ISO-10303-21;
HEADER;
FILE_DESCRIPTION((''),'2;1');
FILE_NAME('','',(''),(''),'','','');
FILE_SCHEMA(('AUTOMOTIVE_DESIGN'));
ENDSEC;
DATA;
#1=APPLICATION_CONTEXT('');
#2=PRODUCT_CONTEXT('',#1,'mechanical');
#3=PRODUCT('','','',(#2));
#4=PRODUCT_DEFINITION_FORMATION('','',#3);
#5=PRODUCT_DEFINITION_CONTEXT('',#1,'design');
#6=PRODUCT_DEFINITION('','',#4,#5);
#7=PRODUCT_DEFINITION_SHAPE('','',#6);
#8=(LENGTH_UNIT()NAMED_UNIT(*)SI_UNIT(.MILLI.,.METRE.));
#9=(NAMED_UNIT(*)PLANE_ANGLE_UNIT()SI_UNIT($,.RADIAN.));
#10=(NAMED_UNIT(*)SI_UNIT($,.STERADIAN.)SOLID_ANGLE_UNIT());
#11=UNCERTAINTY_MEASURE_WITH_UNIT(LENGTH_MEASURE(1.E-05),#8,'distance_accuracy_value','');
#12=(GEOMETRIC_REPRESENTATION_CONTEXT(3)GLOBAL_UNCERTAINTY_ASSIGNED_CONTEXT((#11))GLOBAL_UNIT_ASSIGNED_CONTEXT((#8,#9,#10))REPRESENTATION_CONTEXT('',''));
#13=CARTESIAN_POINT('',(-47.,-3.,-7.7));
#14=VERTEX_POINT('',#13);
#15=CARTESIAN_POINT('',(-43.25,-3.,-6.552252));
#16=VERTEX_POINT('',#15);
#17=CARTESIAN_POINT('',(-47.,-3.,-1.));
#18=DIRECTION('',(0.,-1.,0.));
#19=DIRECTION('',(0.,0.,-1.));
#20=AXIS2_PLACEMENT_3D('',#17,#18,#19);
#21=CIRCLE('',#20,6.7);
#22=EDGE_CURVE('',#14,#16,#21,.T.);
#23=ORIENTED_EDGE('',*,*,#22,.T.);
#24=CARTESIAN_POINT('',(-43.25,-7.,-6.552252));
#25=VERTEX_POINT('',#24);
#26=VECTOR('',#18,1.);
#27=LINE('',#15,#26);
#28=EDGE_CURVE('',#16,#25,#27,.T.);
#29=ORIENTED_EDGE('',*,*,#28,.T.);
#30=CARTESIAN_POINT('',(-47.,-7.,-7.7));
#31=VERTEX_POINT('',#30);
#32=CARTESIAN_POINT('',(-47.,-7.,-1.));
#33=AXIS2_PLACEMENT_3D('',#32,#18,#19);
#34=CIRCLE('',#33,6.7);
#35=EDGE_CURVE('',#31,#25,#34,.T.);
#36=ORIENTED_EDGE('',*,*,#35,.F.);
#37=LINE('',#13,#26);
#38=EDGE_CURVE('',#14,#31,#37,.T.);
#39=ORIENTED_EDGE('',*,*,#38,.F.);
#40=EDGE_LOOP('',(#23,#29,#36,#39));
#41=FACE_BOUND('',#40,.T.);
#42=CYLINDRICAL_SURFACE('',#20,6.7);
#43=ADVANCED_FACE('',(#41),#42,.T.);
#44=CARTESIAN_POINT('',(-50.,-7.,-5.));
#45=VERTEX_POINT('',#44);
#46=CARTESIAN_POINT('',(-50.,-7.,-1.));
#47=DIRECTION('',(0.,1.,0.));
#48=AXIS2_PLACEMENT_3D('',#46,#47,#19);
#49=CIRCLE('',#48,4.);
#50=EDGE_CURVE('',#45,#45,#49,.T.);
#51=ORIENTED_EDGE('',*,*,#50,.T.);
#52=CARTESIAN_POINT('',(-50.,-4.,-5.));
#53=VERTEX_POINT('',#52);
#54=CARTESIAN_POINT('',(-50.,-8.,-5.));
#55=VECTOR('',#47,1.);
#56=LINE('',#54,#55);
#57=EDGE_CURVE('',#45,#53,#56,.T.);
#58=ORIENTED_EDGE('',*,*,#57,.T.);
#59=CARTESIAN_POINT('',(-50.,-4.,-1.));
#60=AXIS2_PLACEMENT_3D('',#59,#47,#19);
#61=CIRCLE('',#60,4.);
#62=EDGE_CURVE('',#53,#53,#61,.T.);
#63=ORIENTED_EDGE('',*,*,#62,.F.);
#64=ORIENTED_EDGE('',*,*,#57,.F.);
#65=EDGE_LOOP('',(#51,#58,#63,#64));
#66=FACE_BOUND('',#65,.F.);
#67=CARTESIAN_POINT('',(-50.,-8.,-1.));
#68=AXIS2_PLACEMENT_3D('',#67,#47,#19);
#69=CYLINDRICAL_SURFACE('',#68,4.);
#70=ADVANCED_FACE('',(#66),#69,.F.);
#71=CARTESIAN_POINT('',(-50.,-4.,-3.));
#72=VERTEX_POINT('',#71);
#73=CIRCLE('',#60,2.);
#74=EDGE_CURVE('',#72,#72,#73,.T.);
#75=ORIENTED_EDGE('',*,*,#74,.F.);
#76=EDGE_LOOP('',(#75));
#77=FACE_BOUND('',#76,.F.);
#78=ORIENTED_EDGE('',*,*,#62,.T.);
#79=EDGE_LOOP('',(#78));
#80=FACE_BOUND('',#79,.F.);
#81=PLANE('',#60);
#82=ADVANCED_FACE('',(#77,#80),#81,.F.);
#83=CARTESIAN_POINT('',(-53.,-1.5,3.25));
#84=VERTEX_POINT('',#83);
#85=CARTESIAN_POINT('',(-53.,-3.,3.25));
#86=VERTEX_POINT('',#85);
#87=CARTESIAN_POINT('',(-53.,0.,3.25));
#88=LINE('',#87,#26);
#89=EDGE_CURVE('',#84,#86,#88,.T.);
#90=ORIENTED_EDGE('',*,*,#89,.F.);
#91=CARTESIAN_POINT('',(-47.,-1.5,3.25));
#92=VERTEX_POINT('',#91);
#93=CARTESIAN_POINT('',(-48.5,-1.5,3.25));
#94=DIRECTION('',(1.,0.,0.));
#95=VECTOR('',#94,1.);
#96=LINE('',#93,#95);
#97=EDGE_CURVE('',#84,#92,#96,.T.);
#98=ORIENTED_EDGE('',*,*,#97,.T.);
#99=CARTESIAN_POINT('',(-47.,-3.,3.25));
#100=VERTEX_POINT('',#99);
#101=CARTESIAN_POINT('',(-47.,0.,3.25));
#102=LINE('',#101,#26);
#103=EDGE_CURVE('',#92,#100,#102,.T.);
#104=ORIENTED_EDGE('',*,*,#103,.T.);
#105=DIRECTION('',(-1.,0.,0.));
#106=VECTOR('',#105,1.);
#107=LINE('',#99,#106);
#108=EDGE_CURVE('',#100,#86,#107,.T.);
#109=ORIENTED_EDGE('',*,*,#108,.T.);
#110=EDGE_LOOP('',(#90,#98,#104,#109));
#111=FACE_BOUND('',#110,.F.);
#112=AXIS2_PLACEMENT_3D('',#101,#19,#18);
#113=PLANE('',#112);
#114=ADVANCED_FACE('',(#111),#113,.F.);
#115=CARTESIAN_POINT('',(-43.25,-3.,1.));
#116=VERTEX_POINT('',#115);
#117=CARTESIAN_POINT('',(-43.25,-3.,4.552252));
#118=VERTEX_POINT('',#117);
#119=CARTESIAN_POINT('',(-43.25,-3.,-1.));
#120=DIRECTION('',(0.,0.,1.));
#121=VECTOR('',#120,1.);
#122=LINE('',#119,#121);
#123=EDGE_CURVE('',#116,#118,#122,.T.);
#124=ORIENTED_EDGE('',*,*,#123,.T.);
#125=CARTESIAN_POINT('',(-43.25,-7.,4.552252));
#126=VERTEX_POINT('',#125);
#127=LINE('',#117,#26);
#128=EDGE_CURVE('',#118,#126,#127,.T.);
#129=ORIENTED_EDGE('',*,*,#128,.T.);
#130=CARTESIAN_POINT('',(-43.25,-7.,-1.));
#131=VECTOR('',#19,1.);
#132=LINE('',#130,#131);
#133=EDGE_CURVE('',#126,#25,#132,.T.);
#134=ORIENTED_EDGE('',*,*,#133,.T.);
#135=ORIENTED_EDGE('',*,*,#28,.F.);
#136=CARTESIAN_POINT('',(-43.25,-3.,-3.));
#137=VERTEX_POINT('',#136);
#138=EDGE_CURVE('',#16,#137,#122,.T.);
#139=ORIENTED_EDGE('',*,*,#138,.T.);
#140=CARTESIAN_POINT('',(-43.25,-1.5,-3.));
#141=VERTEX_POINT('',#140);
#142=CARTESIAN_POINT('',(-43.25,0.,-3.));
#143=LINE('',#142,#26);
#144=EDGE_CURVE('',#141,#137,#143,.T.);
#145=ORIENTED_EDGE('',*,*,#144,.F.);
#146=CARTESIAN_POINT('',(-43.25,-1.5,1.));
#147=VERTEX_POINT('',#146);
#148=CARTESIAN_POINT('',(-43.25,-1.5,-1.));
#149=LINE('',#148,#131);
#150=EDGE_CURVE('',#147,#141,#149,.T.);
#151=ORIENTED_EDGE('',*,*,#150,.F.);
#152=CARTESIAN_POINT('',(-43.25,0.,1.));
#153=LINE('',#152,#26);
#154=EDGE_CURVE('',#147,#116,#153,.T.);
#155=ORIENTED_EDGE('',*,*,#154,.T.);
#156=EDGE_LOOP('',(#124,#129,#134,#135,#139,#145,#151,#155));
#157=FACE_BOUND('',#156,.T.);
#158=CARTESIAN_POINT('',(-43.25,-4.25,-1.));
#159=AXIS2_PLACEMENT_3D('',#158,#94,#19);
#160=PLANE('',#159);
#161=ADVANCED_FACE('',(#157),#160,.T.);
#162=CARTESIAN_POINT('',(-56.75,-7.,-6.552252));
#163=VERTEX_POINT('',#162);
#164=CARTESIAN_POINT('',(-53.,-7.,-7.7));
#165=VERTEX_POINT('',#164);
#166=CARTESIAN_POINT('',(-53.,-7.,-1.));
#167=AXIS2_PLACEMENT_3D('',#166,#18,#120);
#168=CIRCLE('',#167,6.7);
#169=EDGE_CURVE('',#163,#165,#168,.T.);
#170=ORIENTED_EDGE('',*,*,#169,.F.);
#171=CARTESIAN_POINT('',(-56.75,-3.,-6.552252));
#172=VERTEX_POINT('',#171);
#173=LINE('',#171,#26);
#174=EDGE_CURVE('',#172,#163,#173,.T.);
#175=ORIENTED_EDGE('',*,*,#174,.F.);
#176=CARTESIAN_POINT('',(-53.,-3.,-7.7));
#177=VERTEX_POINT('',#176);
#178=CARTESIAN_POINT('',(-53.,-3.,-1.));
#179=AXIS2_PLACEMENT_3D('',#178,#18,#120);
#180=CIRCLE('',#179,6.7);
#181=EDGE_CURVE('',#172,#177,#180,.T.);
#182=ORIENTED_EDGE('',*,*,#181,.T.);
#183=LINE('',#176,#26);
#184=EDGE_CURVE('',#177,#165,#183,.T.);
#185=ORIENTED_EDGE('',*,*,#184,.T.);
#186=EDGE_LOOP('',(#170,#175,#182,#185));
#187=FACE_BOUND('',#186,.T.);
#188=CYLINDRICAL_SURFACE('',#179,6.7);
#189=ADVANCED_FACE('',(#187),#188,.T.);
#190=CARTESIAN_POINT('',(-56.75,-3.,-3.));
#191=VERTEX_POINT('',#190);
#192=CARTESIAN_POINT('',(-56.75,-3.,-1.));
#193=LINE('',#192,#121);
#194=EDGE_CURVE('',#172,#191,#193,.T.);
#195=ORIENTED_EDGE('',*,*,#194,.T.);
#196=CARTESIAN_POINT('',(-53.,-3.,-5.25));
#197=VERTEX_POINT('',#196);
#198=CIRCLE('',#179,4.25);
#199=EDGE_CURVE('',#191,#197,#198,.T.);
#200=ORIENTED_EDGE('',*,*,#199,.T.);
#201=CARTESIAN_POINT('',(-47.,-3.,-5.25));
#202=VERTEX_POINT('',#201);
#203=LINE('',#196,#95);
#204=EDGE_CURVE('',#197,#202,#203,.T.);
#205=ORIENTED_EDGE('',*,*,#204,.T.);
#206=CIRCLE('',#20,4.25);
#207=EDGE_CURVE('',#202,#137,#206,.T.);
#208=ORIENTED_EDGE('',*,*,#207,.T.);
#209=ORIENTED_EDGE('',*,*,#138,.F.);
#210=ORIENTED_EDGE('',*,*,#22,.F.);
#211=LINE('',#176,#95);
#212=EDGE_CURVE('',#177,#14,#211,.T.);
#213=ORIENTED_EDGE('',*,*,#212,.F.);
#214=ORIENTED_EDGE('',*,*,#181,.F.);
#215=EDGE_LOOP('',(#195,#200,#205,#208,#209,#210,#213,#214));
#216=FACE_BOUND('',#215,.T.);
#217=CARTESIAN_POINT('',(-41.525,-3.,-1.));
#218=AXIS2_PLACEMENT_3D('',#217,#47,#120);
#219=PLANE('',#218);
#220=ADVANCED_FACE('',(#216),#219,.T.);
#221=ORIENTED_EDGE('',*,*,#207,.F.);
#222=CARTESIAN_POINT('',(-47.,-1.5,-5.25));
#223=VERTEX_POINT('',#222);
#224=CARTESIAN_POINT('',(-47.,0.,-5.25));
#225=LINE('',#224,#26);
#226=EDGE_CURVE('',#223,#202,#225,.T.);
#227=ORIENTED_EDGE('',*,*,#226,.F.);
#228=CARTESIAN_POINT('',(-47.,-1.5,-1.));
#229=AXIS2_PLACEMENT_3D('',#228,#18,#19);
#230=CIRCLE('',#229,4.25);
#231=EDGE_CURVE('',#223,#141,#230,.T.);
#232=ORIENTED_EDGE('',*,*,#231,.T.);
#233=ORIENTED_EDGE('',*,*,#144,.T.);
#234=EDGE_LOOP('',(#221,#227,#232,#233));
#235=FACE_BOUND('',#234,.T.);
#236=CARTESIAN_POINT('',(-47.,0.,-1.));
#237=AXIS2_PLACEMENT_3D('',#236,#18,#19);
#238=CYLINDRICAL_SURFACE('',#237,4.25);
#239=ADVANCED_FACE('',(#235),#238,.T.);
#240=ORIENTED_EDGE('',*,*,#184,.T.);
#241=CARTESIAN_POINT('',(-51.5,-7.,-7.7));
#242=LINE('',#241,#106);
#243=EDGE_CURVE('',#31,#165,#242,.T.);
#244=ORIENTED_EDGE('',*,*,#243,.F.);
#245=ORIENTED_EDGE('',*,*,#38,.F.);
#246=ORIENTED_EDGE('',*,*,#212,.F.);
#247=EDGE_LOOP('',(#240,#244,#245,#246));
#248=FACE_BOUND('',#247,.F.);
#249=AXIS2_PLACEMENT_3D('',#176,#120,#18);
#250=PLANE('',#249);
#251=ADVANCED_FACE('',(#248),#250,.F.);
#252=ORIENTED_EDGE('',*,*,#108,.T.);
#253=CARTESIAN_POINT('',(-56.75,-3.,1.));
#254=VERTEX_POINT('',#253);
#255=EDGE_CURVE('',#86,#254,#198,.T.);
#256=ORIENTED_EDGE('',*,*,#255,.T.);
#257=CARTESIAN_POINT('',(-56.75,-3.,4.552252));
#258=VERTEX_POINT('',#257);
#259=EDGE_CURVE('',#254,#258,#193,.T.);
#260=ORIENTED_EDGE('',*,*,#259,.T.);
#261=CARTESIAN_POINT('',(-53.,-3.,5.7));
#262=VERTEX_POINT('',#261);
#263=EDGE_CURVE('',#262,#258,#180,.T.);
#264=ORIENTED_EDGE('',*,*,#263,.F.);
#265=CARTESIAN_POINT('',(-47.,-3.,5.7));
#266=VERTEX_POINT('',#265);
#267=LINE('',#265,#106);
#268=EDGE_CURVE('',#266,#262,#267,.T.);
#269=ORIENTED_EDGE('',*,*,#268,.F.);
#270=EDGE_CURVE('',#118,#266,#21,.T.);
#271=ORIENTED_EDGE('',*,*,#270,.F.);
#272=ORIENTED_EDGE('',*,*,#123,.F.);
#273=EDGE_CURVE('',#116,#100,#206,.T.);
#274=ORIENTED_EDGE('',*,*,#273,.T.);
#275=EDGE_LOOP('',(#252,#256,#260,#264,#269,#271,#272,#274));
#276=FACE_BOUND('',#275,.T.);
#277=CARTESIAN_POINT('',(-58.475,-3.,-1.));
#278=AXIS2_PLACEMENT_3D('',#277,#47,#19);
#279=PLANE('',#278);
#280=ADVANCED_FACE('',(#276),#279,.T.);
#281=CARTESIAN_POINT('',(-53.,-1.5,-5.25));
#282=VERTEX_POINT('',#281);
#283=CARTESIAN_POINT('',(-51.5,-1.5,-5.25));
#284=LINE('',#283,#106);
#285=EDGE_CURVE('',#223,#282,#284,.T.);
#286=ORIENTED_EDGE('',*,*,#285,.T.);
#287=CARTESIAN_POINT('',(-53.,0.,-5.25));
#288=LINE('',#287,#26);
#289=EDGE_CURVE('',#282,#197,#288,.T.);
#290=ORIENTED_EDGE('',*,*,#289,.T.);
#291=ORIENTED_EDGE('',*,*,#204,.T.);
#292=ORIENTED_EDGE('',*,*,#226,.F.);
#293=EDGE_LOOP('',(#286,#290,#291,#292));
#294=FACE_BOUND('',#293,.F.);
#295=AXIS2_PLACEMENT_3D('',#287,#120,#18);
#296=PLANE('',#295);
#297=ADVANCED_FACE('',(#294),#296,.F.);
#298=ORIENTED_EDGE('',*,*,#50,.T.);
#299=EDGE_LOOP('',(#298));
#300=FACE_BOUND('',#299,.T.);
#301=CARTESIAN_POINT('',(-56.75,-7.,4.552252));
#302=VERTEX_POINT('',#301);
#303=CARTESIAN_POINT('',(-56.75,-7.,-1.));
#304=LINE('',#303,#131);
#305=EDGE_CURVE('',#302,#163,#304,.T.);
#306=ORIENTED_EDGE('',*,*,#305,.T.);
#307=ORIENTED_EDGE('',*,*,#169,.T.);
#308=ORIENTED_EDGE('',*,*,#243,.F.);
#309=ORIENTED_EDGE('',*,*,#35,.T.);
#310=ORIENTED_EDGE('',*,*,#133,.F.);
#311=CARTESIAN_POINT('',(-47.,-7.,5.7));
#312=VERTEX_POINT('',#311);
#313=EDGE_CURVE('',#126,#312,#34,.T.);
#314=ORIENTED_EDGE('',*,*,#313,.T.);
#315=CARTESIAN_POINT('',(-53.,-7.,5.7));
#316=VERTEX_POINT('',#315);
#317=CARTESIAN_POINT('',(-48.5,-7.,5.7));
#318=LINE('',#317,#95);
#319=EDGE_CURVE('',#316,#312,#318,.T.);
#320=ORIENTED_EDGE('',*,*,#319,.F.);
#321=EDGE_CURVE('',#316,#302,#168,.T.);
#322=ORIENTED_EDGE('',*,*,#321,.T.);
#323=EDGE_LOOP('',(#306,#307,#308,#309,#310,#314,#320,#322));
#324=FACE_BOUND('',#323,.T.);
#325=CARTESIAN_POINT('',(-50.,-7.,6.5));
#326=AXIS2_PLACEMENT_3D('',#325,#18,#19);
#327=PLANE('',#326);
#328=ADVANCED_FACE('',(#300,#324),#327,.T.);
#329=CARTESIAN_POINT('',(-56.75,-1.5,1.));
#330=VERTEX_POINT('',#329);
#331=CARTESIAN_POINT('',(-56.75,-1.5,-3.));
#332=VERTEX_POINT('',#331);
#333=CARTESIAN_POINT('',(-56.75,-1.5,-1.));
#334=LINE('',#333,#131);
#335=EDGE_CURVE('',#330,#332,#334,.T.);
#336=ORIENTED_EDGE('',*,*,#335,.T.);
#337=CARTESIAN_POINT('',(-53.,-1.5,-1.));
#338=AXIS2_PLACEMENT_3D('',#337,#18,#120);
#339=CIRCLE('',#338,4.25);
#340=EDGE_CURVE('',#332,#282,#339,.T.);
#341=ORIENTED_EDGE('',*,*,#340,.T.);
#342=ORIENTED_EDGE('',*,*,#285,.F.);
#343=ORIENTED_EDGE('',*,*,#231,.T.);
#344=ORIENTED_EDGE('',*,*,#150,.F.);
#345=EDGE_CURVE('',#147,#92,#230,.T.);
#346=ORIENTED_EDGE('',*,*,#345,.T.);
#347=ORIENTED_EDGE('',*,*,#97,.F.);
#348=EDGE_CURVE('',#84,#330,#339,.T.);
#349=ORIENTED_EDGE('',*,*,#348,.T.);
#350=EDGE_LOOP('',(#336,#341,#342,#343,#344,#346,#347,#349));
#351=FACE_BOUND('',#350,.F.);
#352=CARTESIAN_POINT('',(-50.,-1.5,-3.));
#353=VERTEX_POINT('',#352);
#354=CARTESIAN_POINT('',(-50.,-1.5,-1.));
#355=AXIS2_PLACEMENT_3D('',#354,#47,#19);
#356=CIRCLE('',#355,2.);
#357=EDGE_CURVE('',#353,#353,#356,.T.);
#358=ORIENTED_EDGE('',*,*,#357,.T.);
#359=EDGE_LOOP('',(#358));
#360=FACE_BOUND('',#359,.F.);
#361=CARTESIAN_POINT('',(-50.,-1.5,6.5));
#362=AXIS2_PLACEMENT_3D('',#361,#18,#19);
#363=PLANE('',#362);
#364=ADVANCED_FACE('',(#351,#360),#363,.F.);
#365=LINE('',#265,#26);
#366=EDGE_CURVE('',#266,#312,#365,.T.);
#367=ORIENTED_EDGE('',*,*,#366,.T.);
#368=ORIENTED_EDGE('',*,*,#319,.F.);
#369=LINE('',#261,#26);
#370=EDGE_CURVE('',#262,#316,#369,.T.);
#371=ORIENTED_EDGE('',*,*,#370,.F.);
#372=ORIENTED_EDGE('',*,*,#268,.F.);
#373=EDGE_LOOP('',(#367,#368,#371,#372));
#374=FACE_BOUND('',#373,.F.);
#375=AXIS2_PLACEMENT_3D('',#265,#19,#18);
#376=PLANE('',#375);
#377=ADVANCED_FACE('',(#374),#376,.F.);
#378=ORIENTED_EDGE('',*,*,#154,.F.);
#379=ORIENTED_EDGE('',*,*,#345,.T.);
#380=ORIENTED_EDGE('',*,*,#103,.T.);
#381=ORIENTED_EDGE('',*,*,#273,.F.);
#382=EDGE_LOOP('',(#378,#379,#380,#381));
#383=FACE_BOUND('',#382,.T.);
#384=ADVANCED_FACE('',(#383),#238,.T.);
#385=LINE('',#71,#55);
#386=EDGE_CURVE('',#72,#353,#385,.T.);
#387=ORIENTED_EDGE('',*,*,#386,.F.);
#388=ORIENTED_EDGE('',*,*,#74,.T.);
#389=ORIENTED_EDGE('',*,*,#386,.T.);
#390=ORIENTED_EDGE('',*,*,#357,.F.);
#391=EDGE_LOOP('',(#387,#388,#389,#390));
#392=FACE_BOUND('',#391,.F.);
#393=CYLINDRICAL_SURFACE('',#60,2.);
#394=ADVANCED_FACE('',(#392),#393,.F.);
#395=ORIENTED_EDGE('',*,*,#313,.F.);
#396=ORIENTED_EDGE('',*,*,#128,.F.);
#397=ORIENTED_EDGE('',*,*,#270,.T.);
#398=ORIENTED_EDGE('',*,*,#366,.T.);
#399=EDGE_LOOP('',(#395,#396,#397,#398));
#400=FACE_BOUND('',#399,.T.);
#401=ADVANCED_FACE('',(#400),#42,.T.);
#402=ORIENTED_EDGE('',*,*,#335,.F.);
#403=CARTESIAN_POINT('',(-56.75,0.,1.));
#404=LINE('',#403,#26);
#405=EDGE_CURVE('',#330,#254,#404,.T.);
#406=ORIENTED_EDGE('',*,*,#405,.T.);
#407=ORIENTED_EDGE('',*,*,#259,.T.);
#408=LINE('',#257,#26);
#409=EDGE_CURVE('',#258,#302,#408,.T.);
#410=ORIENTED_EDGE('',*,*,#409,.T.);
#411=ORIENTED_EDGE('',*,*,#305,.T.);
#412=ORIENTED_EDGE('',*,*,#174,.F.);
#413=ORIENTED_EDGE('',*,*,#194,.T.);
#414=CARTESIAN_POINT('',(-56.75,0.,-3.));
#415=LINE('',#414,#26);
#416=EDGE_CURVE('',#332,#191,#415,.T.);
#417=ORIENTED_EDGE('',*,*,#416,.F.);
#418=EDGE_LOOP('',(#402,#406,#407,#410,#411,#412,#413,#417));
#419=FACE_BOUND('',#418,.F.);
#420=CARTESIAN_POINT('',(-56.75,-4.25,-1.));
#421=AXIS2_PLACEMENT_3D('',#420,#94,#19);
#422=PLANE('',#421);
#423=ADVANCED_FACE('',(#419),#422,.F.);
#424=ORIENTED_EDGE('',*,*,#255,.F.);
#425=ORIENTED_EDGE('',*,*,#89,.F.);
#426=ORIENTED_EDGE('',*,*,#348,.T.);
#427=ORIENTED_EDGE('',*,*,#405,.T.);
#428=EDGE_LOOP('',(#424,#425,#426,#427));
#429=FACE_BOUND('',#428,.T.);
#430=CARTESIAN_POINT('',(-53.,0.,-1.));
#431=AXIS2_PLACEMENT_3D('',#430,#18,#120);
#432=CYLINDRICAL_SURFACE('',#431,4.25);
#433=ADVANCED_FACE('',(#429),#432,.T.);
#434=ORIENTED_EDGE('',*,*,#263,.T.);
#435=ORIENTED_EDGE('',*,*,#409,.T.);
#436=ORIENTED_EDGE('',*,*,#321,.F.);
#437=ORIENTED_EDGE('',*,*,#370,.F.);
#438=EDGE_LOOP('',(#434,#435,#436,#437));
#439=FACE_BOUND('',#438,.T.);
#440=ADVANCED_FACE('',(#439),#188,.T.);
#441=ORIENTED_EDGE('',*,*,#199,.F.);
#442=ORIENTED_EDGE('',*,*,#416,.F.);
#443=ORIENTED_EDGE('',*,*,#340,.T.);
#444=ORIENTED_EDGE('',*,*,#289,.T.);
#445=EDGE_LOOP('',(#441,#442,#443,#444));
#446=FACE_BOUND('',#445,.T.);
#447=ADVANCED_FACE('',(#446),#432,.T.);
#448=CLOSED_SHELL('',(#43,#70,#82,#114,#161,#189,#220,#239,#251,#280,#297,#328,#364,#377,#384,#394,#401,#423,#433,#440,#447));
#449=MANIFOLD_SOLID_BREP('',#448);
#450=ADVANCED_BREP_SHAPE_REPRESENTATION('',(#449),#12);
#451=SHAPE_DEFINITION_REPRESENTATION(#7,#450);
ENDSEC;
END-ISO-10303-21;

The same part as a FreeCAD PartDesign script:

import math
import FreeCAD as App
import Part
import Sketcher

V = App.Vector


def add_polygon(sketch, points):
    """Adds a closed chain of lines whose ends are joined by coincident constraints."""
    first, n = sketch.GeometryCount, len(points)
    for a, b in zip(points, points[1:] + points[:1]):
        sketch.addGeometry(Part.LineSegment(App.Vector(*a, 0), App.Vector(*b, 0)), False)
    for i in range(n):
        sketch.addConstraint(Sketcher.Constraint("Coincident", first + i, 2, first + (i + 1) % n, 1))

doc = App.newDocument("Part")
body = doc.addObject("PartDesign::Body", "Body")

# Sketch on XY plane
sketch1 = doc.addObject("Sketcher::SketchObject", "Sketch")
body.addObject(sketch1)
sketch1.AttachmentSupport = (doc.XY_Plane, [""])
sketch1.MapMode = "FlatFace"
add_polygon(sketch1, [(-8, -2), (-8, -7), (8, -7), (8, -2)])  # lines 0-3
sketch1.addConstraint([
    Sketcher.Constraint("Vertical", 0),
    Sketcher.Constraint("Horizontal", 1),
    Sketcher.Constraint("Vertical", 2),
    Sketcher.Constraint("Horizontal", 3),
    Sketcher.Constraint("DistanceX", 1, 1, 1, 2, 15.0),
    Sketcher.Constraint("DistanceY", 0, 2, 0, 1, 5.5),
    Sketcher.Constraint("DistanceY", 0, 2, -1, 1, 7.0),
    Sketcher.Constraint("DistanceX", 0, 2, -1, 1, 7.5),
])
pad1 = doc.addObject("PartDesign::Pad", "Pad")
body.addObject(pad1)
pad1.Profile = sketch1
pad1.Length = 13.5
pad1.Midplane = True

# Sketch on XY plane
sketch2 = doc.addObject("Sketcher::SketchObject", "Sketch001")
body.addObject(sketch2)
sketch2.AttachmentSupport = (doc.XY_Plane, [""])
sketch2.MapMode = "FlatFace"
add_polygon(sketch2, [(0, 0), (0, -8), (4, -8), (4, -4), (2, -4), (2, 0)])  # lines 0-5
sketch2.addConstraint([
    Sketcher.Constraint("Vertical", 0),
    Sketcher.Constraint("Horizontal", 1),
    Sketcher.Constraint("Vertical", 2),
    Sketcher.Constraint("Horizontal", 3),
    Sketcher.Constraint("Vertical", 4),
    Sketcher.Constraint("Horizontal", 5),
    Sketcher.Constraint("Coincident", 5, 2, -1, 1),
    Sketcher.Constraint("Equal", 3, 5),
    Sketcher.Constraint("Equal", 1, 2),
    Sketcher.Constraint("Equal", 2, 4),
    Sketcher.Constraint("DistanceX", 1, 1, 1, 2, 4.0),
])
groove = doc.addObject("PartDesign::Groove", "Groove")
body.addObject(groove)
groove.Profile = sketch2
groove.ReferenceAxis = (sketch2, ["V_Axis"])
groove.Angle = 360

# Sketch on XY plane
sketch3 = doc.addObject("Sketcher::SketchObject", "Sketch002")
body.addObject(sketch3)
sketch3.AttachmentSupport = (doc.XY_Plane, [""])
sketch3.MapMode = "FlatFace"
add_polygon(sketch3, [(4.2, 0), (4.2, -3), (6.7, -3), (6.7, -8), (10, -8), (10, 0)])  # lines 0-5
sketch3.addConstraint([
    Sketcher.Constraint("Vertical", 0),
    Sketcher.Constraint("Horizontal", 1),
    Sketcher.Constraint("Vertical", 2),
    Sketcher.Constraint("Horizontal", 3),
    Sketcher.Constraint("Vertical", 4),
    Sketcher.Constraint("Horizontal", 5),
    Sketcher.Constraint("PointOnObject", 4, 2, -1),
    Sketcher.Constraint("DistanceY", 0, 2, 0, 1, 3.0),
    Sketcher.Constraint("DistanceY", 2, 2, 2, 1, 5.0),
    Sketcher.Constraint("DistanceX", 3, 1, 3, 2, 3.3),
    Sketcher.Constraint("DistanceX", -1, 1, 3, 2, 10.0),
    Sketcher.Constraint("DistanceX", 1, 1, 1, 2, 2.45),
])

# Sketch on XZ plane
sketch4 = doc.addObject("Sketcher::SketchObject", "Sketch003")
body.addObject(sketch4)
sketch4.AttachmentSupport = (doc.XZ_Plane, [""])
sketch4.MapMode = "FlatFace"
sketch4.addGeometry([
    Part.ArcOfCircle(Part.Circle(V(0, 3, 0), V(0, 0, 1), 7), math.radians(0), math.radians(180)),
    Part.LineSegment(V(-7, 3, 0), V(-7, -3, 0)),
    Part.ArcOfCircle(Part.Circle(V(0, -3, 0), V(0, 0, 1), 7), math.radians(180), math.radians(360)),
    Part.LineSegment(V(7, -3, 0), V(7, 3, 0)),
], False)
sketch4.addConstraint([
    Sketcher.Constraint("Tangent", 0, 2, 1, 1),
    Sketcher.Constraint("Tangent", 1, 2, 2, 1),
    Sketcher.Constraint("Tangent", 2, 2, 3, 1),
    Sketcher.Constraint("Tangent", 3, 2, 0, 1),
    Sketcher.Constraint("Vertical", 1),
    Sketcher.Constraint("Vertical", 3),
    Sketcher.Constraint("Symmetric", 0, 3, 2, 3, -1, 1),
    Sketcher.Constraint("DistanceY", 1, 2, 1, 1, 6.0),
    Sketcher.Constraint("Radius", 0, 6.75),
])
doc.recompute()

subtractivepipe = doc.addObject("PartDesign::SubtractivePipe", "SubtractivePipe")
body.addObject(subtractivepipe)
subtractivepipe.Profile = sketch3
subtractivepipe.Spine = (sketch4, ["Edge1", "Edge2", "Edge3", "Edge4"])
body2 = doc.addObject("PartDesign::Body", "Body001")
doc.recompute()

body.Placement = App.Placement(V(-50, 0, -1), App.Rotation(V(0, 1, 0), 90))
boolean = doc.addObject("PartDesign::Boolean", "Boolean")
body2.addObject(boolean)
boolean.Type = "Fuse"
boolean.addObjects([body])

doc.recompute()
